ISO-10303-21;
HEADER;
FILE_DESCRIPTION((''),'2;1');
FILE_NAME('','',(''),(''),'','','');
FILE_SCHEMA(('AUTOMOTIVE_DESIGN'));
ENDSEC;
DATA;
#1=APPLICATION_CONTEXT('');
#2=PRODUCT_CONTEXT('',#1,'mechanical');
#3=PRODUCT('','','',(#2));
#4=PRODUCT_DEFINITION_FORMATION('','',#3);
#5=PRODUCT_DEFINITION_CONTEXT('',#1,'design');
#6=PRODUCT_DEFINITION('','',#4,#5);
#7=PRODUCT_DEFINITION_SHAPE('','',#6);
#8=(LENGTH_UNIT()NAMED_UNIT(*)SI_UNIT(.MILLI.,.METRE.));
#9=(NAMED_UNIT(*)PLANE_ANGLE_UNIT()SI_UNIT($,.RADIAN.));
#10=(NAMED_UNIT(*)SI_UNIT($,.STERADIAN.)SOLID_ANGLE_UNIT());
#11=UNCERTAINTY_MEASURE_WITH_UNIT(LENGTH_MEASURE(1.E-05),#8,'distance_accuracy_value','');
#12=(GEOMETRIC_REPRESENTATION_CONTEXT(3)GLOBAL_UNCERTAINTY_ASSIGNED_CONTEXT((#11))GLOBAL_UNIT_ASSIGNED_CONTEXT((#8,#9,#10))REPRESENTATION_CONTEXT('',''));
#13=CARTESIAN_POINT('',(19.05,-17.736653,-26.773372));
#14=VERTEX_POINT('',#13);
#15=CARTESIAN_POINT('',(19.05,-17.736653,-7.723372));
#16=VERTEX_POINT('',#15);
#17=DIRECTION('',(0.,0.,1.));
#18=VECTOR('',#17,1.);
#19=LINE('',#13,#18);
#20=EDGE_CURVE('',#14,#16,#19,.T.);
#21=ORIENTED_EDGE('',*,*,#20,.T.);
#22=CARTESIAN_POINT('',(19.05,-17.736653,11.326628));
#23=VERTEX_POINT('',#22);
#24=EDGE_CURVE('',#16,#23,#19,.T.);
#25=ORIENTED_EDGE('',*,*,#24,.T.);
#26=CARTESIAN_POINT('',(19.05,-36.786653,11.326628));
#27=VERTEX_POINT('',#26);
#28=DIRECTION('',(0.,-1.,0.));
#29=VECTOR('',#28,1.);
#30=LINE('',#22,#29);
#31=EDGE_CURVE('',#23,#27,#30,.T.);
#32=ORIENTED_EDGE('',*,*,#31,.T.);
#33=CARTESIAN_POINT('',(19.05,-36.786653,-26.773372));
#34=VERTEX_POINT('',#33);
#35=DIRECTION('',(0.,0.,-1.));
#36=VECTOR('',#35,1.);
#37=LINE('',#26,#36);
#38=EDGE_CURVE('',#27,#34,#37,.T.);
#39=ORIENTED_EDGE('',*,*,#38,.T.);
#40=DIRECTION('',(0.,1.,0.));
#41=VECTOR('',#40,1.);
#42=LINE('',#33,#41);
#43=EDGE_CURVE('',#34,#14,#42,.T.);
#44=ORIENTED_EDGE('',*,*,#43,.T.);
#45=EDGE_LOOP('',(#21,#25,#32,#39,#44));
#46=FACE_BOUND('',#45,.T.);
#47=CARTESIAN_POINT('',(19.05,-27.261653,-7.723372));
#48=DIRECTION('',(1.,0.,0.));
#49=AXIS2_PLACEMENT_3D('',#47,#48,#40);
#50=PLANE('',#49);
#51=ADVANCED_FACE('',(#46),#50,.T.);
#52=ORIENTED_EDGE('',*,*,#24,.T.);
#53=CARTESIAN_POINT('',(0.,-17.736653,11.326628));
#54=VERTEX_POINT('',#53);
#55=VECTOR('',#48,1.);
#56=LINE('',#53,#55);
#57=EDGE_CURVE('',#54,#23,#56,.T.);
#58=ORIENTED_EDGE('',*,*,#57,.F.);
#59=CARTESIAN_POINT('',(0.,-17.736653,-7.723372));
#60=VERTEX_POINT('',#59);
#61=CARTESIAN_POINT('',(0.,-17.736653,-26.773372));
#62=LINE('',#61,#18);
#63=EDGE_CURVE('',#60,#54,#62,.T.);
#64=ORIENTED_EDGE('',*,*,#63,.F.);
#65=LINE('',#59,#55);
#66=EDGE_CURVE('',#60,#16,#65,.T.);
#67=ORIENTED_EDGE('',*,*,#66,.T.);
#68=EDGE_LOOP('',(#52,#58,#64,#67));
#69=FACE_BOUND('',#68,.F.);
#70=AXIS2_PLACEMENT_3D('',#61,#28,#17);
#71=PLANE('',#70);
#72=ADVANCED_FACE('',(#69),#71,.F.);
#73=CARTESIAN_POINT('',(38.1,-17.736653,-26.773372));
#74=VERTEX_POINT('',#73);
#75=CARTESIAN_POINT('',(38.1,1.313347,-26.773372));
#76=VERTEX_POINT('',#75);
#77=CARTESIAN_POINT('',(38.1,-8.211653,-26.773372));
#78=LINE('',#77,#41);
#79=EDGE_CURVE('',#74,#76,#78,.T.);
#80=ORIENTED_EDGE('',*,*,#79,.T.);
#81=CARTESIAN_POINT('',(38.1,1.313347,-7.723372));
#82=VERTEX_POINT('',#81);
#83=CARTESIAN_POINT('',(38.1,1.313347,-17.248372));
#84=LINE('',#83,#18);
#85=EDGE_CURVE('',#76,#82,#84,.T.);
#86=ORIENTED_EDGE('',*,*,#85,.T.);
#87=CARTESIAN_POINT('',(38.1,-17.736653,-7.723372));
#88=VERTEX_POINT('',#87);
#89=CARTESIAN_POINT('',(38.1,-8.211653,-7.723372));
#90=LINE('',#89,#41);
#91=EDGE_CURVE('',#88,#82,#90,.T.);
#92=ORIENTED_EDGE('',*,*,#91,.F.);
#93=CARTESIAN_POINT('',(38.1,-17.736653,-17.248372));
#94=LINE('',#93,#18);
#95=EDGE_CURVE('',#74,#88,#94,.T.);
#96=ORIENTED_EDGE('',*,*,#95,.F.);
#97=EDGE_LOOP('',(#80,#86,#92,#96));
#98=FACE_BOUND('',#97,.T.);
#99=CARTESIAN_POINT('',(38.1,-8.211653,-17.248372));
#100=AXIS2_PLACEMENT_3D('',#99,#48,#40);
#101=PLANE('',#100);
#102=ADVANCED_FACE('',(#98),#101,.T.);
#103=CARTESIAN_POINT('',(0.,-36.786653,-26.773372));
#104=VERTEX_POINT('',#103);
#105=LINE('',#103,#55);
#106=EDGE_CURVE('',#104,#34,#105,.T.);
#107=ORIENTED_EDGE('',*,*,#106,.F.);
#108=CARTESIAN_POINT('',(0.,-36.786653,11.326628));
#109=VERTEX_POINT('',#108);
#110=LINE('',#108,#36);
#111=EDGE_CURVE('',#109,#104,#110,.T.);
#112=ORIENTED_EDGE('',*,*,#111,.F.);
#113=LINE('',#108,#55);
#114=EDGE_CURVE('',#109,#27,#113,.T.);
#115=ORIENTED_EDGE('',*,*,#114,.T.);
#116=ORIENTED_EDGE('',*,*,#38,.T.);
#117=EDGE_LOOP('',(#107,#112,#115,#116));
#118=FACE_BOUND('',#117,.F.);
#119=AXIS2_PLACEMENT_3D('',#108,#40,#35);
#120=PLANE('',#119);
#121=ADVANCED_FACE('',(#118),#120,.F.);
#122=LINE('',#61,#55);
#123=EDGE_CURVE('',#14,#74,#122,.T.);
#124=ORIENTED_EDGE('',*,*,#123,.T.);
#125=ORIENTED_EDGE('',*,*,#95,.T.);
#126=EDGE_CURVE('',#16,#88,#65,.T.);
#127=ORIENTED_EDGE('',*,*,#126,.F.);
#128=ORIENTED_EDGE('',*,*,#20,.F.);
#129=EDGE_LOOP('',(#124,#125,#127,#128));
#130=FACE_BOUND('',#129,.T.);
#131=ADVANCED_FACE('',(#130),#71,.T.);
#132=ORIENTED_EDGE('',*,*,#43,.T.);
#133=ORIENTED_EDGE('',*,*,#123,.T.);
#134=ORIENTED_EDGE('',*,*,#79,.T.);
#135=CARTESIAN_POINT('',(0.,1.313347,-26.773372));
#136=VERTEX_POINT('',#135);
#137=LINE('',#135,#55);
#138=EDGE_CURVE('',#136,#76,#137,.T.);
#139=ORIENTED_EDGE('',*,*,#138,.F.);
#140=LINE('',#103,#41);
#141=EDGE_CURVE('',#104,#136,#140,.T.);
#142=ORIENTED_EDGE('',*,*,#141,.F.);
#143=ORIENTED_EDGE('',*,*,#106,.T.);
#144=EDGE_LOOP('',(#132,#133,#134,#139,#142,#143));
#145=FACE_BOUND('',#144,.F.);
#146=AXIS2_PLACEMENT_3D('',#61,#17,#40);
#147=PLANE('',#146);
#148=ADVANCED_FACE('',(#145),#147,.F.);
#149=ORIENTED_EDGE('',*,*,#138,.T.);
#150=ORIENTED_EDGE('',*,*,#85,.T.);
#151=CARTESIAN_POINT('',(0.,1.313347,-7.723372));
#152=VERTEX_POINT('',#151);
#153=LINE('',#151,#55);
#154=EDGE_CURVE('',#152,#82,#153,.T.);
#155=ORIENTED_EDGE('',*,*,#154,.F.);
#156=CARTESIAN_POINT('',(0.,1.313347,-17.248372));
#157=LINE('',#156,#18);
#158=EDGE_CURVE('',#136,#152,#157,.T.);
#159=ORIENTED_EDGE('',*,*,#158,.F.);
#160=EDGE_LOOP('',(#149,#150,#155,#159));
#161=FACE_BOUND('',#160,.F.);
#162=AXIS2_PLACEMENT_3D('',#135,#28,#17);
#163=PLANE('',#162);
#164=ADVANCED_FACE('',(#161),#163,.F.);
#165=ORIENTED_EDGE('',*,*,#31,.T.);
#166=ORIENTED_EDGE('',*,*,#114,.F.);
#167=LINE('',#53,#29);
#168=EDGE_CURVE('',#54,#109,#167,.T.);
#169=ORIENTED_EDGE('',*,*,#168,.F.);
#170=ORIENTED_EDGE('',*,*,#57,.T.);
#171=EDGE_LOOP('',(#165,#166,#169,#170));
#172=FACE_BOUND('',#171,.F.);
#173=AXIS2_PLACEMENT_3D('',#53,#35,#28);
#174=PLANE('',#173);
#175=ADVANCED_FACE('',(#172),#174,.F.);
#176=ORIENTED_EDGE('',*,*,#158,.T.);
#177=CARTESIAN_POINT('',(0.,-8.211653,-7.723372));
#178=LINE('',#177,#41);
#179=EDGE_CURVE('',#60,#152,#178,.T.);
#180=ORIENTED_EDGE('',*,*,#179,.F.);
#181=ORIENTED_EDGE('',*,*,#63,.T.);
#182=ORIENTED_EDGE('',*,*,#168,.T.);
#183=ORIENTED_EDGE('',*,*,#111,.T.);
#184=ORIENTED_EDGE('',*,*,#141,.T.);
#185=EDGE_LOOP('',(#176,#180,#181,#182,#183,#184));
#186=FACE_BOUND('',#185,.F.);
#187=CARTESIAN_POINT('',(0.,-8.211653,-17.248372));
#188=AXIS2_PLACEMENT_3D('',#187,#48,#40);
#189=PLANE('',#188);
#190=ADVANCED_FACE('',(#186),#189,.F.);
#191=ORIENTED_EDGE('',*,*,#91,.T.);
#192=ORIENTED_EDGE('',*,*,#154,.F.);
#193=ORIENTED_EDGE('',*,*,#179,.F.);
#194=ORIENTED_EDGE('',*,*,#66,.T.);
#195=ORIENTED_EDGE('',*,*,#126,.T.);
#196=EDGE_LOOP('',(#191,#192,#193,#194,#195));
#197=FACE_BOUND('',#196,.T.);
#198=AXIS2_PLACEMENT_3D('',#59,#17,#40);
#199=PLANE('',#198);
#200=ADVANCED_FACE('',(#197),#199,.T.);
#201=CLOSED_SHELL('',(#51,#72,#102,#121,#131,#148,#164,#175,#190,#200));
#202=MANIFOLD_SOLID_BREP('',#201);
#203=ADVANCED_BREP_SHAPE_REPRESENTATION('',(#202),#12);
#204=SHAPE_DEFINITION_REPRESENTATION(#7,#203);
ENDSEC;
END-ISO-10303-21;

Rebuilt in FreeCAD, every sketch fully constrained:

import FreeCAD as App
import Part
import Sketcher
Q = App.Units.Quantity

doc = App.newDocument("Part")
body = doc.addObject("PartDesign::Body", "Body")

# Sketch on YZ plane
sketch1 = body.newObject("Sketcher::SketchObject", "Sketch")
sketch1.AttachmentSupport = (doc.getObject("YZ_Plane"), [""])
sketch1.MapMode = "FlatFace"
sketch1.addGeometry([
    Part.LineSegment(App.Vector(-18, 11, 0), App.Vector(-37, 11, 0)),
    Part.LineSegment(App.Vector(-37, 11, 0), App.Vector(-37, -27, 0)),
    Part.LineSegment(App.Vector(-37, -27, 0), App.Vector(-18, -27, 0)),
    Part.LineSegment(App.Vector(-18, -27, 0), App.Vector(-18, 11, 0)),
], False)
sketch1.addConstraint([
    Sketcher.Constraint("Coincident", 0, 2, 1, 1),
    Sketcher.Constraint("Coincident", 1, 2, 2, 1),
    Sketcher.Constraint("Coincident", 2, 2, 3, 1),
    Sketcher.Constraint("Coincident", 3, 2, 0, 1),
    Sketcher.Constraint("Horizontal", 0),
    Sketcher.Constraint("Vertical", 1),
    Sketcher.Constraint("Horizontal", 2),
    Sketcher.Constraint("Vertical", 3),
    Sketcher.Constraint("DistanceY", 1, 2, 1, 1, Q("1.5 in")),
    Sketcher.Constraint("DistanceX", 0, 2, 0, 1, Q("0.75 in")),
    Sketcher.Constraint("DistanceY", 1, 2, -1, 1, 26.773372),
    Sketcher.Constraint("DistanceX", 0, 2, -1, 1, 36.786653),
])
pad1 = body.newObject("PartDesign::Pad", "Pad")
pad1.Profile = sketch1
pad1.Length = Q("0.75 in")

# Sketch on YZ plane
sketch2 = body.newObject("Sketcher::SketchObject", "Sketch001")
sketch2.AttachmentSupport = (doc.getObject("YZ_Plane"), [""])
sketch2.MapMode = "FlatFace"
sketch2.addGeometry([
    Part.LineSegment(App.Vector(-18, -8, 0), App.Vector(-18, -27, 0)),
    Part.LineSegment(App.Vector(-18, -27, 0), App.Vector(1, -27, 0)),
    Part.LineSegment(App.Vector(1, -27, 0), App.Vector(1, -8, 0)),
    Part.LineSegment(App.Vector(1, -8, 0), App.Vector(-18, -8, 0)),
], False)
sketch2.addConstraint([
    Sketcher.Constraint("Coincident", 0, 2, 1, 1),
    Sketcher.Constraint("Coincident", 1, 2, 2, 1),
    Sketcher.Constraint("Coincident", 2, 2, 3, 1),
    Sketcher.Constraint("Coincident", 3, 2, 0, 1),
    Sketcher.Constraint("Vertical", 0),
    Sketcher.Constraint("Horizontal", 1),
    Sketcher.Constraint("Vertical", 2),
    Sketcher.Constraint("Horizontal", 3),
    Sketcher.Constraint("Equal", 3, 0),
    Sketcher.Constraint("DistanceX", 1, 1, 1, 2, Q("0.75 in")),
    Sketcher.Constraint("DistanceY", 0, 2, -1, 1, 26.773372),
    Sketcher.Constraint("DistanceX", 0, 2, -1, 1, 17.736653),
])
pad2 = body.newObject("PartDesign::Pad", "Pad001")
pad2.Profile = sketch2
pad2.Length = Q("1.5 in")

doc.recompute()
